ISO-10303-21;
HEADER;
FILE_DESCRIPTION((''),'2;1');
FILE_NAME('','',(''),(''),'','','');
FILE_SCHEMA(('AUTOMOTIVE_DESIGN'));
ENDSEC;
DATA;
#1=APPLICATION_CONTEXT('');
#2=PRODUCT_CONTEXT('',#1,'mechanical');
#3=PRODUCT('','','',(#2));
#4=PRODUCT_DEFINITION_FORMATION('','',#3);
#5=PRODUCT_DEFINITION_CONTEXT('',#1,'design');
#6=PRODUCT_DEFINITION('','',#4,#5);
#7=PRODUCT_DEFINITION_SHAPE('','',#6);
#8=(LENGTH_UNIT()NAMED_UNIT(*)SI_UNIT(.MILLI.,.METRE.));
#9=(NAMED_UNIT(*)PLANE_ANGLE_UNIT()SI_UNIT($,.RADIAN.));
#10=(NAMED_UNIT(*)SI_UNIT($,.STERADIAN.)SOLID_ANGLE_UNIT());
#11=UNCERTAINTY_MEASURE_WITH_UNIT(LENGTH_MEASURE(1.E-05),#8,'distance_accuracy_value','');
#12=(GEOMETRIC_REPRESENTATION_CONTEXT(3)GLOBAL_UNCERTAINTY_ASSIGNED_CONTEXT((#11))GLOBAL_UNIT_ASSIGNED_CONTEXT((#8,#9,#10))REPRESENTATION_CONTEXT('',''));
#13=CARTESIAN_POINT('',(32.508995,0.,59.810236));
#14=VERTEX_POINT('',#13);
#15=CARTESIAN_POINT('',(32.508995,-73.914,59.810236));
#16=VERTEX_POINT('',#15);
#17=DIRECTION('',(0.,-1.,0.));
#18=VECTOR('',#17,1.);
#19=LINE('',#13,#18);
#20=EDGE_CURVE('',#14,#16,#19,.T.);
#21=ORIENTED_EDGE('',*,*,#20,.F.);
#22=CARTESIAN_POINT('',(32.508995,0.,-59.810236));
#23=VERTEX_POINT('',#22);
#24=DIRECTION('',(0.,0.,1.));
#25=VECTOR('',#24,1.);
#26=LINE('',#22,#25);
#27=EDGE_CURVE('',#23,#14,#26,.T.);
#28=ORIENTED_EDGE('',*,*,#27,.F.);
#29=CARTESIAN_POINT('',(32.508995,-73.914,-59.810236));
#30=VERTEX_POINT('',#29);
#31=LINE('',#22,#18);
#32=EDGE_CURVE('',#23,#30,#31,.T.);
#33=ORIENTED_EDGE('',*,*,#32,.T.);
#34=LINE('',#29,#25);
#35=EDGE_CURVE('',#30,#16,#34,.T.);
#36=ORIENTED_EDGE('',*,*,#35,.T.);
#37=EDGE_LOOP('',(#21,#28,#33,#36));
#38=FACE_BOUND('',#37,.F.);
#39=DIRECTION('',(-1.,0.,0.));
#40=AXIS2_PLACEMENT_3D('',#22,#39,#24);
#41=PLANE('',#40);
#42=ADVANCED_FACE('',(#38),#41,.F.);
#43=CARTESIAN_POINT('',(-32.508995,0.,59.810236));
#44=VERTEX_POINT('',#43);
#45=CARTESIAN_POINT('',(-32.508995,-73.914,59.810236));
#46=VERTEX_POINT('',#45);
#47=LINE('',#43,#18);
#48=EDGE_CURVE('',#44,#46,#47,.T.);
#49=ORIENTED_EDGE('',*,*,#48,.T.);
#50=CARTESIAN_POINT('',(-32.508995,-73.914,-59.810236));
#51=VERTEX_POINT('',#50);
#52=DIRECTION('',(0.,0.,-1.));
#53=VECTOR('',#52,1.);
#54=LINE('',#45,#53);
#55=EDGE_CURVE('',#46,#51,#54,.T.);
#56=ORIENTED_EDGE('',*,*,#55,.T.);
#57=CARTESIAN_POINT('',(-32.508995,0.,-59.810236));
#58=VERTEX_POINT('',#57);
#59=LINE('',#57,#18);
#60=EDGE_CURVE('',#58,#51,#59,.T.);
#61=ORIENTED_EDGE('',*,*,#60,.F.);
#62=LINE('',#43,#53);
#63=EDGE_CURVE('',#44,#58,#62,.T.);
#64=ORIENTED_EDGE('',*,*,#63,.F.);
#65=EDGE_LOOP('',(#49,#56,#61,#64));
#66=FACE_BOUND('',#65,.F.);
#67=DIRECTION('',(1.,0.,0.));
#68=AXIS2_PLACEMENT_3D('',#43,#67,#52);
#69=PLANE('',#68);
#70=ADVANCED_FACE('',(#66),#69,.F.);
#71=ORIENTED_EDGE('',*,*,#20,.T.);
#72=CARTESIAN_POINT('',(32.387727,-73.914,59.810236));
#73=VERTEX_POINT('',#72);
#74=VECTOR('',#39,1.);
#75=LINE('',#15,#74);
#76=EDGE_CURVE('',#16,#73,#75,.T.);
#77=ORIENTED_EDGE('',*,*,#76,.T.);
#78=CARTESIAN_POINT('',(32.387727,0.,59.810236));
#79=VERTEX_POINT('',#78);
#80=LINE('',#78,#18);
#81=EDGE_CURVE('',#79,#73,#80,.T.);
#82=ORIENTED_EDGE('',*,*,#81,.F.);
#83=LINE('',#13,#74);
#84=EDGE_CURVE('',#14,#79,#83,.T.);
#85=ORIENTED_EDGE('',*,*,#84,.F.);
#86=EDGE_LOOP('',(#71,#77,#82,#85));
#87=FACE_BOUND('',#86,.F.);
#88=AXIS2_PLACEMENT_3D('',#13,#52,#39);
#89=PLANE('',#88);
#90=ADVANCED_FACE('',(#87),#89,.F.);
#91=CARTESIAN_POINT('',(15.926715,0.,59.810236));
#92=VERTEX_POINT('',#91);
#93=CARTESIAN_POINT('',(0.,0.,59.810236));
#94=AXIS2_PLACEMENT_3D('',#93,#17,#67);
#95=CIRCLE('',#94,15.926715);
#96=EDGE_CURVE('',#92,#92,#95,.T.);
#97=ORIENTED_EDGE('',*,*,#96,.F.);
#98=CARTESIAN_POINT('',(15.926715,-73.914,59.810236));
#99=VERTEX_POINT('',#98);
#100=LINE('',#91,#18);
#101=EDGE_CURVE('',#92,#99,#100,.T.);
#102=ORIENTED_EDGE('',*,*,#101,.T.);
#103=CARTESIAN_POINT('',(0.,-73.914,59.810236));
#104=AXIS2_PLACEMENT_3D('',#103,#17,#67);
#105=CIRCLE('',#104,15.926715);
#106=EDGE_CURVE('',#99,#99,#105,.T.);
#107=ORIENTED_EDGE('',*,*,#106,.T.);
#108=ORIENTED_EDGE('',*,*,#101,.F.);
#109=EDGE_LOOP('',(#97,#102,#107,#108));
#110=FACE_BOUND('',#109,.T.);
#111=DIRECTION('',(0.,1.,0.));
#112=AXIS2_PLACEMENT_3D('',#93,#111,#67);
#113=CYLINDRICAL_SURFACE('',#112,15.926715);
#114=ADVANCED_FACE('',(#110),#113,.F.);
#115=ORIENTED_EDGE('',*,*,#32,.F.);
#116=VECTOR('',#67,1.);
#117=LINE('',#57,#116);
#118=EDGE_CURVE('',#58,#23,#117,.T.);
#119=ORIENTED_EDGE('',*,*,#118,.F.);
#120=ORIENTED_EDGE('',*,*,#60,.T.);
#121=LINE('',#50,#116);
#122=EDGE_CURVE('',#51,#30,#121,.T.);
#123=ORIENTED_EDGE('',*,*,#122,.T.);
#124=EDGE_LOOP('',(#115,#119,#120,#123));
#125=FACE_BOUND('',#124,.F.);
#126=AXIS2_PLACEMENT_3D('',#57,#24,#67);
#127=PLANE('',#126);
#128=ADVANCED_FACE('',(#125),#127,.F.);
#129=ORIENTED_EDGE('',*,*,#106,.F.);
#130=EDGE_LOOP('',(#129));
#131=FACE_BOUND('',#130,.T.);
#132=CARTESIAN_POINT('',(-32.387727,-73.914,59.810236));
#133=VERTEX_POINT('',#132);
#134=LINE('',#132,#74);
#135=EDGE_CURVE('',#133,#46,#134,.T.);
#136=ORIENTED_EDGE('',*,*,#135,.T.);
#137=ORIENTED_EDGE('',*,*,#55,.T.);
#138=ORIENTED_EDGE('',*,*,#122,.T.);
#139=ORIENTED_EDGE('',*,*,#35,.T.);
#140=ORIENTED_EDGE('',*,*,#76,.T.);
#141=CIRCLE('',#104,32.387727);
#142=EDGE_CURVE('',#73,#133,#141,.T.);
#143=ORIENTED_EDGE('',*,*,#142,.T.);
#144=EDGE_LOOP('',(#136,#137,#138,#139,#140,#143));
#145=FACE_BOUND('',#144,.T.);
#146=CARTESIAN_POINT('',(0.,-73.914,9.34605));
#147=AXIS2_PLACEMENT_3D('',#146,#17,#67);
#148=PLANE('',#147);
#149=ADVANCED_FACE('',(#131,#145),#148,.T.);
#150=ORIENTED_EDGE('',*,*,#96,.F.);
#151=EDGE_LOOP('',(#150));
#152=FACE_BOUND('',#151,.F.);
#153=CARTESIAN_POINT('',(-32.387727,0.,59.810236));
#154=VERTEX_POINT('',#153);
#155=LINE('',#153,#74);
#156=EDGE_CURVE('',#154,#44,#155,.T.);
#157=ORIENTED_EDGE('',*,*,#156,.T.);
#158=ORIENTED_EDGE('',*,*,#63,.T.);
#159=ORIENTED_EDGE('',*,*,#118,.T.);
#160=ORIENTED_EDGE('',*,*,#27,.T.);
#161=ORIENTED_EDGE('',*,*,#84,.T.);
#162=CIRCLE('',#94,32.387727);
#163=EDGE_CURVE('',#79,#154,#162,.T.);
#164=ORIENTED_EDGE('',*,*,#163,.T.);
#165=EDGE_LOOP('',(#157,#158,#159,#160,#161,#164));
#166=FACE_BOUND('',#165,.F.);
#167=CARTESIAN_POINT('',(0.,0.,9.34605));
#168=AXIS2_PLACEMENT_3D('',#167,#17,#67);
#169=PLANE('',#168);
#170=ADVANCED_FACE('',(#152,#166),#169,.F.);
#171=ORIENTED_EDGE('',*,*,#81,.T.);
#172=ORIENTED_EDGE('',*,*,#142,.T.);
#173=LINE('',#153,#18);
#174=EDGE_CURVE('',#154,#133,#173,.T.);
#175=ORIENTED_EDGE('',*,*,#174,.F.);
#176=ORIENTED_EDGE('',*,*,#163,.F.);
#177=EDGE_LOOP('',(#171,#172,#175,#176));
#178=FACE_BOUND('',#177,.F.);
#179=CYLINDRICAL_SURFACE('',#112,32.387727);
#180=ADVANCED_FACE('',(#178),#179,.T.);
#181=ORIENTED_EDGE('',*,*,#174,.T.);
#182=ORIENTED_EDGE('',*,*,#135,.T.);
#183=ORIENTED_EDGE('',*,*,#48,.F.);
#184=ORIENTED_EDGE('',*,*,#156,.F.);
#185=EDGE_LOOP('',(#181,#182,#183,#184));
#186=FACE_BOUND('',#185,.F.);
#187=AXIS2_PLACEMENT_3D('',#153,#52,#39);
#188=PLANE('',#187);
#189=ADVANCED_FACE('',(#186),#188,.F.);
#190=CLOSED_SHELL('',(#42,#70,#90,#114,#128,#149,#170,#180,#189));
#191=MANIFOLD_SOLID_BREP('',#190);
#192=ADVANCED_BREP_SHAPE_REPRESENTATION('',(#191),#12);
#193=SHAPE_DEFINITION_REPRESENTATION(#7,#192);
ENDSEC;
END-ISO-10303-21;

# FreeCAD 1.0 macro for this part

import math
import FreeCAD as App
import Part
import Sketcher
from FreeCAD import Vector
Q = App.Units.Quantity

doc = App.newDocument("Part")
params = doc.addObject("Spreadsheet::Sheet", "Params")
for row, (alias, value) in enumerate([
    ("pad1_length", "2.91 in"),
], start=1):
    params.set(f"A{row}", alias)
    params.set(f"B{row}", "=" + value)
    params.setAlias(f"B{row}", alias)

body = doc.addObject("PartDesign::Body", "Body")

# Sketch on XZ plane
sketch1 = body.newObject("Sketcher::SketchObject", "Sketch")
sketch1.AttachmentSupport = (doc.getObject("XZ_Plane"), [""])
sketch1.MapMode = "FlatFace"
sketch1.addGeometry(Part.LineSegment(Vector(-32.51, -59.81, 0), Vector(32.51, -59.81, 0)), False)
sketch1.addGeometry(Part.LineSegment(Vector(32.51, -59.81, 0), Vector(32.51, 59.81, 0)), False)
sketch1.addGeometry(Part.LineSegment(Vector(32.51, 59.81, 0), Vector(32.39, 59.81, 0)), False)
sketch1.addGeometry(Part.ArcOfCircle(Part.Circle(Vector(0, 59.81, 0), Vector(0, 0, 1), 32.39), math.radians(0), math.radians(180)), False)
sketch1.addGeometry(Part.LineSegment(Vector(-32.39, 59.81, 0), Vector(-32.51, 59.81, 0)), False)
sketch1.addGeometry(Part.LineSegment(Vector(-32.51, 59.81, 0), Vector(-32.51, -59.81, 0)), False)
sketch1.addGeometry(Part.Circle(Vector(0, 59.81, 0), Vector(0, 0, 1), 15.93), False)
sketch1.addConstraint(Sketcher.Constraint("Coincident", 0, 2, 1, 1))
sketch1.addConstraint(Sketcher.Constraint("Coincident", 1, 2, 2, 1))
sketch1.addConstraint(Sketcher.Constraint("Coincident", 2, 2, 3, 1))
sketch1.addConstraint(Sketcher.Constraint("Coincident", 3, 2, 4, 1))
sketch1.addConstraint(Sketcher.Constraint("Coincident", 4, 2, 5, 1))
sketch1.addConstraint(Sketcher.Constraint("Coincident", 5, 2, 0, 1))
sketch1.addConstraint(Sketcher.Constraint("Horizontal", 0))
sketch1.addConstraint(Sketcher.Constraint("Vertical", 1))
sketch1.addConstraint(Sketcher.Constraint("Horizontal", 2))
sketch1.addConstraint(Sketcher.Constraint("Horizontal", 4))
sketch1.addConstraint(Sketcher.Constraint("Vertical", 5))
sketch1.addConstraint(Sketcher.Constraint("Coincident", 6, 3, 3, 3))
sketch1.addConstraint(Sketcher.Constraint("Symmetric", 0, 2, 4, 2, -1, 1))
sketch1.addConstraint(Sketcher.Constraint("Symmetric", 2, 2, 3, 2, -2))
sketch1.addConstraint(Sketcher.Constraint("Horizontal", 6, 3, 1, 2))
sketch1.addConstraint(Sketcher.Constraint("Diameter", 6, Q("31.85343 mm")))
sketch1.addConstraint(Sketcher.Constraint("Radius", 3, Q("32.387727 mm")))
sketch1.addConstraint(Sketcher.Constraint("DistanceX", 0, 1, 0, 2, Q("65.01799 mm")))
sketch1.addConstraint(Sketcher.Constraint("DistanceY", 1, 1, 1, 2, Q("119.620472 mm")))
pad1 = body.newObject("PartDesign::Pad", "Pad")
pad1.Profile = sketch1
pad1.setExpression("Length", "Params.pad1_length")

doc.recompute()
